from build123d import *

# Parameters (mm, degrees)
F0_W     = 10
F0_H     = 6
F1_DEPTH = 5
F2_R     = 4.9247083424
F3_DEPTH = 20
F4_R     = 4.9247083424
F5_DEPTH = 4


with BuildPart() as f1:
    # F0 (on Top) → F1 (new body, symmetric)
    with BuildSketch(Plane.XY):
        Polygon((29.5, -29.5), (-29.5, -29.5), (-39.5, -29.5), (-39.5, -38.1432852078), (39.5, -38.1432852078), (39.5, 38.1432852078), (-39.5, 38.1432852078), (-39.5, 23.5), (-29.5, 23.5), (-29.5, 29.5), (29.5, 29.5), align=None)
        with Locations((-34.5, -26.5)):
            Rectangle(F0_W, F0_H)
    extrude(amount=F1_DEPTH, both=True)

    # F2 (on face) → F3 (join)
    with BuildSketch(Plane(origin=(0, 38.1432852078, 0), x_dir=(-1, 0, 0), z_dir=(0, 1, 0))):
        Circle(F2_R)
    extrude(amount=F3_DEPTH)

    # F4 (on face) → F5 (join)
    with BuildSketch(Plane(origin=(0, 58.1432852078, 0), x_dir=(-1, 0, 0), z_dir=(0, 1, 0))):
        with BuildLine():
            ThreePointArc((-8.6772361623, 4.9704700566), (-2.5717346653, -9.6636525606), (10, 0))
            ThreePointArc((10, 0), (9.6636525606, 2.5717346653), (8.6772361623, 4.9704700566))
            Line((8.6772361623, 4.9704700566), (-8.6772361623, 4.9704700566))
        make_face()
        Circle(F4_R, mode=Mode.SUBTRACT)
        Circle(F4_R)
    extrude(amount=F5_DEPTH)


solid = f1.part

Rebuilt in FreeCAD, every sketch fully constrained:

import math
import FreeCAD as App
import Part
import Sketcher
from FreeCAD import Vector
Q = App.Units.Quantity


def add_polygon(sketch, points):
    """Adds a closed chain of lines whose ends are joined by coincident constraints."""
    first, n = sketch.GeometryCount, len(points)
    for a, b in zip(points, points[1:] + points[:1]):
        sketch.addGeometry(Part.LineSegment(App.Vector(*a, 0), App.Vector(*b, 0)), False)
    for i in range(n):
        sketch.addConstraint(Sketcher.Constraint("Coincident", first + i, 2, first + (i + 1) % n, 1))

doc = App.newDocument("Part")
params = doc.addObject("Spreadsheet::Sheet", "Params")
for row, (alias, value) in enumerate([
    ("sketch1_width", "59 mm"),
    ("sketch1_width2", "10 mm"),
    ("sketch1_height", "6 mm"),
    ("pad1_length", "10 mm"),
    ("pad2_length", "20 mm"),
    ("sketch3_radius", "10 mm"),
    ("pad3_length", "4 mm"),
], start=1):
    params.set(f"A{row}", alias)
    params.set(f"B{row}", "=" + value)
    params.setAlias(f"B{row}", alias)

body = doc.addObject("PartDesign::Body", "Body")

# Sketch on XY plane
sketch1 = doc.addObject("Sketcher::SketchObject", "Sketch")
body.addObject(sketch1)
sketch1.AttachmentSupport = (doc.XY_Plane, [""])
sketch1.MapMode = "FlatFace"
add_polygon(sketch1, [(29.5, -29.5), (-29.5, -29.5), (-29.5, -23.5), (-39.5, -23.5), (-39.5, -38.143285), (39.5, -38.143285), (39.5, 38.143285), (-39.5, 38.143285), (-39.5, 23.5), (-29.5, 23.5), (-29.5, 29.5), (29.5, 29.5)])  # lines 0-11
sketch1.addConstraint([
    Sketcher.Constraint("Horizontal", 0),
    Sketcher.Constraint("Vertical", 1),
    Sketcher.Constraint("Horizontal", 2),
    Sketcher.Constraint("Vertical", 3),
    Sketcher.Constraint("Horizontal", 4),
    Sketcher.Constraint("Vertical", 5),
    Sketcher.Constraint("Horizontal", 6),
    Sketcher.Constraint("Vertical", 7),
    Sketcher.Constraint("Horizontal", 8),
    Sketcher.Constraint("Vertical", 9),
    Sketcher.Constraint("Horizontal", 10),
    Sketcher.Constraint("Vertical", 11),
    Sketcher.Constraint("Symmetric", 3, 2, 5, 2, -1, 1),
    Sketcher.Constraint("Symmetric", 0, 2, 10, 2, -1, 1),
    Sketcher.Constraint("Symmetric", 2, 2, 7, 2, -1),
    Sketcher.Constraint("Vertical", 1, 2, 8, 2),
    Sketcher.Constraint("Equal", 10, 11),
    Sketcher.Constraint("DistanceX", 0, 2, 0, 1, Q("59 mm")),
    Sketcher.Constraint("DistanceX", 2, 2, 2, 1, Q("10 mm")),
    Sketcher.Constraint("DistanceY", 1, 1, 1, 2, Q("6 mm")),
    Sketcher.Constraint("DistanceY", 5, 1, 5, 2, Q("76.28657 mm")),
])
sketch1.setExpression("Constraints[29]", "Params.sketch1_width")
sketch1.setExpression("Constraints[30]", "Params.sketch1_width2")
sketch1.setExpression("Constraints[31]", "Params.sketch1_height")
pad1 = doc.addObject("PartDesign::Pad", "Pad")
body.addObject(pad1)
pad1.Profile = sketch1
pad1.setExpression("Length", "Params.pad1_length")
pad1.Midplane = True

# Sketch on XZ plane
sketch2 = doc.addObject("Sketcher::SketchObject", "Sketch001")
body.addObject(sketch2)
sketch2.AttachmentSupport = (doc.XZ_Plane, [""])
sketch2.MapMode = "FlatFace"
sketch2.AttachmentOffset = App.Placement(Vector(0, 0, -38.143285), App.Rotation())
sketch2.addGeometry(Part.Circle(Vector(0, 0, 0), Vector(0, 0, 1), 4.924708), False)
sketch2.addConstraint([
    Sketcher.Constraint("Coincident", 0, 3, -1, 1),
    Sketcher.Constraint("Diameter", 0, Q("9.849417 mm")),
])
pad2 = doc.addObject("PartDesign::Pad", "Pad001")
body.addObject(pad2)
pad2.Profile = sketch2
pad2.setExpression("Length", "Params.pad2_length")
pad2.Reversed = True

# Sketch on XZ plane
sketch3 = doc.addObject("Sketcher::SketchObject", "Sketch002")
body.addObject(sketch3)
sketch3.AttachmentSupport = (doc.XZ_Plane, [""])
sketch3.MapMode = "FlatFace"
sketch3.AttachmentOffset = App.Placement(Vector(0, 0, -58.143285), App.Rotation())
sketch3.addGeometry([
    Part.ArcOfCircle(Part.Circle(Vector(0, 0, 0), Vector(0, 0, 1), 10), math.radians(180), math.radians(389.804823)),
    Part.ArcOfCircle(Part.Circle(Vector(0, 0, 0), Vector(0, 0, 1), 10), math.radians(150.195177), math.radians(180)),
    Part.LineSegment(Vector(-8.677236, 4.97047, 0), Vector(8.677236, 4.97047, 0)),
], False)
sketch3.addConstraint([
    Sketcher.Constraint("Tangent", 0, 1, 1, 2),
    Sketcher.Constraint("Coincident", 1, 1, 2, 1),
    Sketcher.Constraint("Coincident", 2, 2, 0, 2),
    Sketcher.Constraint("Horizontal", 2),
    Sketcher.Constraint("Coincident", 0, 3, -1, 1),
    Sketcher.Constraint("Equal", 0, 1),
    Sketcher.Constraint("PointOnObject", 0, 1, -1),
    Sketcher.Constraint("Radius", 0, Q("10 mm")),
    Sketcher.Constraint("DistanceX", 2, 1, 2, 2, Q("17.354472 mm")),
])
sketch3.setExpression("Constraints[7]", "Params.sketch3_radius")
pad3 = doc.addObject("PartDesign::Pad", "Pad002")
body.addObject(pad3)
pad3.Profile = sketch3
pad3.setExpression("Length", "Params.pad3_length")
pad3.Reversed = True

doc.recompute()
